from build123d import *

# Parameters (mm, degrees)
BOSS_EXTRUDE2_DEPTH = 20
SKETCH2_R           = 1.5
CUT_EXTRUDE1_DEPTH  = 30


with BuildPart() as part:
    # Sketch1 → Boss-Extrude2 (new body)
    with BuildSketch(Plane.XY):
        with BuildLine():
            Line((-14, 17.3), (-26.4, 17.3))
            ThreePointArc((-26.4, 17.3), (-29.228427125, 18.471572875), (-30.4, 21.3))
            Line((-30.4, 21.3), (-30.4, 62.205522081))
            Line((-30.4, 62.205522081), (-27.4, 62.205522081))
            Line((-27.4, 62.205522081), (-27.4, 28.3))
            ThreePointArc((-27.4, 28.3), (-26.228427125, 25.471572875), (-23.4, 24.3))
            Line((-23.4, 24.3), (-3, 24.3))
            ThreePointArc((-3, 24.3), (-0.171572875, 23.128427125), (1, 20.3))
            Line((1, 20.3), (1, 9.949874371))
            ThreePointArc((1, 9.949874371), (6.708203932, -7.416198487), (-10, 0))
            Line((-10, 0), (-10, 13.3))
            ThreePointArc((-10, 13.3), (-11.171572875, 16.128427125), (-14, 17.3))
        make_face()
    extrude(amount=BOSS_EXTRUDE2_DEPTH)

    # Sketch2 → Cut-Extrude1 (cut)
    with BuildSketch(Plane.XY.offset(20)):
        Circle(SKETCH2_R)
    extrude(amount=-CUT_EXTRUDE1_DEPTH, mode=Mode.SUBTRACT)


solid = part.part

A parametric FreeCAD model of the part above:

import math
import FreeCAD as App
import Part
import Sketcher

V = App.Vector
Q = App.Units.Quantity

doc = App.newDocument("Part")
params = doc.addObject("Spreadsheet::Sheet", "Params")
for row, (alias, value) in enumerate([
    ("sketch1_radius", "4 mm"),
    ("sketch1_radius2", "10 mm"),
    ("sketch1_width", "3 mm"),
    ("sketch1_width2", "12.4 mm"),
    ("sketch1_width3", "20.4 mm"),
    ("pad1_length", "20 mm"),
    ("sketch2_diameter", "3 mm"),
    ("pocket1_length", "30 mm"),
], start=1):
    params.set(f"A{row}", alias)
    params.set(f"B{row}", "=" + value)
    params.setAlias(f"B{row}", alias)

body = doc.addObject("PartDesign::Body", "Body")

# Sketch on XY plane
sketch1 = doc.addObject("Sketcher::SketchObject", "Sketch")
body.addObject(sketch1)
sketch1.AttachmentSupport = (doc.XY_Plane, [""])
sketch1.MapMode = "FlatFace"
sketch1.addGeometry([
    Part.LineSegment(V(-26.4, 17.3, 0), V(-14, 17.3, 0)),  # 0
    Part.ArcOfCircle(Part.Circle(V(-14, 13.3, 0), V(0, 0, 1), 4), math.radians(0), math.radians(90)),  # 1
    Part.LineSegment(V(-10, 13.3, 0), V(-10, 0, 0)),  # 2
    Part.ArcOfCircle(Part.Circle(V(0, 0, 0), V(0, 0, 1), 10), math.radians(180), math.radians(444.26083)),  # 3
    Part.LineSegment(V(1, 9.949874, 0), V(1, 20.3, 0)),  # 4
    Part.ArcOfCircle(Part.Circle(V(-3, 20.3, 0), V(0, 0, 1), 4), math.radians(0), math.radians(90)),  # 5
    Part.LineSegment(V(-3, 24.3, 0), V(-23.4, 24.3, 0)),  # 6
    Part.ArcOfCircle(Part.Circle(V(-23.4, 28.3, 0), V(0, 0, 1), 4), math.radians(180), math.radians(270)),  # 7
    Part.LineSegment(V(-27.4, 28.3, 0), V(-27.4, 62.205522, 0)),  # 8
    Part.LineSegment(V(-27.4, 62.205522, 0), V(-30.4, 62.205522, 0)),  # 9
    Part.LineSegment(V(-30.4, 62.205522, 0), V(-30.4, 21.3, 0)),  # 10
    Part.ArcOfCircle(Part.Circle(V(-26.4, 21.3, 0), V(0, 0, 1), 4), math.radians(180), math.radians(270)),  # 11
], False)
sketch1.addConstraint([
    Sketcher.Constraint("Tangent", 0, 2, 1, 2),
    Sketcher.Constraint("Tangent", 1, 1, 2, 1),
    Sketcher.Constraint("Tangent", 2, 2, 3, 1),
    Sketcher.Constraint("Coincident", 3, 2, 4, 1),
    Sketcher.Constraint("Tangent", 4, 2, 5, 1),
    Sketcher.Constraint("Tangent", 5, 2, 6, 1),
    Sketcher.Constraint("Tangent", 6, 2, 7, 2),
    Sketcher.Constraint("Tangent", 7, 1, 8, 1),
    Sketcher.Constraint("Coincident", 8, 2, 9, 1),
    Sketcher.Constraint("Coincident", 9, 2, 10, 1),
    Sketcher.Constraint("Tangent", 10, 2, 11, 1),
    Sketcher.Constraint("Tangent", 11, 2, 0, 1),
    Sketcher.Constraint("Horizontal", 0),
    Sketcher.Constraint("Vertical", 2),
    Sketcher.Constraint("Vertical", 4),
    Sketcher.Constraint("Horizontal", 6),
    Sketcher.Constraint("Vertical", 8),
    Sketcher.Constraint("Horizontal", 9),
    Sketcher.Constraint("Vertical", 10),
    Sketcher.Constraint("Coincident", 3, 3, -1, 1),
    Sketcher.Constraint("Equal", 1, 5),
    Sketcher.Constraint("Equal", 5, 7),
    Sketcher.Constraint("Equal", 7, 11),
    Sketcher.Constraint("Radius", 1, Q("4 mm")),
    Sketcher.Constraint("Radius", 3, Q("10 mm")),
    Sketcher.Constraint("DistanceX", 9, 2, 9, 1, Q("3 mm")),
    Sketcher.Constraint("DistanceX", 0, 1, 0, 2, Q("12.4 mm")),
    Sketcher.Constraint("DistanceX", 6, 2, 6, 1, Q("20.4 mm")),
    Sketcher.Constraint("DistanceY", 2, 2, 2, 1, Q("13.3 mm")),
    Sketcher.Constraint("DistanceY", 1, 3, 5, 3, Q("7 mm")),
    Sketcher.Constraint("DistanceY", 8, 1, 8, 2, Q("33.905522 mm")),
])
sketch1.setExpression("Constraints[23]", "Params.sketch1_radius")
sketch1.setExpression("Constraints[24]", "Params.sketch1_radius2")
sketch1.setExpression("Constraints[25]", "Params.sketch1_width")
sketch1.setExpression("Constraints[26]", "Params.sketch1_width2")
sketch1.setExpression("Constraints[27]", "Params.sketch1_width3")
pad1 = doc.addObject("PartDesign::Pad", "Pad")
body.addObject(pad1)
pad1.Profile = sketch1
pad1.setExpression("Length", "Params.pad1_length")

# Sketch on XY plane
sketch2 = doc.addObject("Sketcher::SketchObject", "Sketch001")
body.addObject(sketch2)
sketch2.AttachmentSupport = (doc.XY_Plane, [""])
sketch2.MapMode = "FlatFace"
sketch2.AttachmentOffset = App.Placement(V(0, 0, 20), App.Rotation())
sketch2.addGeometry(Part.Circle(V(0, 0, 0), V(0, 0, 1), 1.5), False)
sketch2.addConstraint([
    Sketcher.Constraint("Coincident", 0, 3, -1, 1),
    Sketcher.Constraint("Diameter", 0, Q("3 mm")),
])
sketch2.setExpression("Constraints[1]", "Params.sketch2_diameter")
pocket1 = doc.addObject("PartDesign::Pocket", "Pocket")
body.addObject(pocket1)
pocket1.Profile = sketch2
pocket1.setExpression("Length", "Params.pocket1_length")

doc.recompute()
